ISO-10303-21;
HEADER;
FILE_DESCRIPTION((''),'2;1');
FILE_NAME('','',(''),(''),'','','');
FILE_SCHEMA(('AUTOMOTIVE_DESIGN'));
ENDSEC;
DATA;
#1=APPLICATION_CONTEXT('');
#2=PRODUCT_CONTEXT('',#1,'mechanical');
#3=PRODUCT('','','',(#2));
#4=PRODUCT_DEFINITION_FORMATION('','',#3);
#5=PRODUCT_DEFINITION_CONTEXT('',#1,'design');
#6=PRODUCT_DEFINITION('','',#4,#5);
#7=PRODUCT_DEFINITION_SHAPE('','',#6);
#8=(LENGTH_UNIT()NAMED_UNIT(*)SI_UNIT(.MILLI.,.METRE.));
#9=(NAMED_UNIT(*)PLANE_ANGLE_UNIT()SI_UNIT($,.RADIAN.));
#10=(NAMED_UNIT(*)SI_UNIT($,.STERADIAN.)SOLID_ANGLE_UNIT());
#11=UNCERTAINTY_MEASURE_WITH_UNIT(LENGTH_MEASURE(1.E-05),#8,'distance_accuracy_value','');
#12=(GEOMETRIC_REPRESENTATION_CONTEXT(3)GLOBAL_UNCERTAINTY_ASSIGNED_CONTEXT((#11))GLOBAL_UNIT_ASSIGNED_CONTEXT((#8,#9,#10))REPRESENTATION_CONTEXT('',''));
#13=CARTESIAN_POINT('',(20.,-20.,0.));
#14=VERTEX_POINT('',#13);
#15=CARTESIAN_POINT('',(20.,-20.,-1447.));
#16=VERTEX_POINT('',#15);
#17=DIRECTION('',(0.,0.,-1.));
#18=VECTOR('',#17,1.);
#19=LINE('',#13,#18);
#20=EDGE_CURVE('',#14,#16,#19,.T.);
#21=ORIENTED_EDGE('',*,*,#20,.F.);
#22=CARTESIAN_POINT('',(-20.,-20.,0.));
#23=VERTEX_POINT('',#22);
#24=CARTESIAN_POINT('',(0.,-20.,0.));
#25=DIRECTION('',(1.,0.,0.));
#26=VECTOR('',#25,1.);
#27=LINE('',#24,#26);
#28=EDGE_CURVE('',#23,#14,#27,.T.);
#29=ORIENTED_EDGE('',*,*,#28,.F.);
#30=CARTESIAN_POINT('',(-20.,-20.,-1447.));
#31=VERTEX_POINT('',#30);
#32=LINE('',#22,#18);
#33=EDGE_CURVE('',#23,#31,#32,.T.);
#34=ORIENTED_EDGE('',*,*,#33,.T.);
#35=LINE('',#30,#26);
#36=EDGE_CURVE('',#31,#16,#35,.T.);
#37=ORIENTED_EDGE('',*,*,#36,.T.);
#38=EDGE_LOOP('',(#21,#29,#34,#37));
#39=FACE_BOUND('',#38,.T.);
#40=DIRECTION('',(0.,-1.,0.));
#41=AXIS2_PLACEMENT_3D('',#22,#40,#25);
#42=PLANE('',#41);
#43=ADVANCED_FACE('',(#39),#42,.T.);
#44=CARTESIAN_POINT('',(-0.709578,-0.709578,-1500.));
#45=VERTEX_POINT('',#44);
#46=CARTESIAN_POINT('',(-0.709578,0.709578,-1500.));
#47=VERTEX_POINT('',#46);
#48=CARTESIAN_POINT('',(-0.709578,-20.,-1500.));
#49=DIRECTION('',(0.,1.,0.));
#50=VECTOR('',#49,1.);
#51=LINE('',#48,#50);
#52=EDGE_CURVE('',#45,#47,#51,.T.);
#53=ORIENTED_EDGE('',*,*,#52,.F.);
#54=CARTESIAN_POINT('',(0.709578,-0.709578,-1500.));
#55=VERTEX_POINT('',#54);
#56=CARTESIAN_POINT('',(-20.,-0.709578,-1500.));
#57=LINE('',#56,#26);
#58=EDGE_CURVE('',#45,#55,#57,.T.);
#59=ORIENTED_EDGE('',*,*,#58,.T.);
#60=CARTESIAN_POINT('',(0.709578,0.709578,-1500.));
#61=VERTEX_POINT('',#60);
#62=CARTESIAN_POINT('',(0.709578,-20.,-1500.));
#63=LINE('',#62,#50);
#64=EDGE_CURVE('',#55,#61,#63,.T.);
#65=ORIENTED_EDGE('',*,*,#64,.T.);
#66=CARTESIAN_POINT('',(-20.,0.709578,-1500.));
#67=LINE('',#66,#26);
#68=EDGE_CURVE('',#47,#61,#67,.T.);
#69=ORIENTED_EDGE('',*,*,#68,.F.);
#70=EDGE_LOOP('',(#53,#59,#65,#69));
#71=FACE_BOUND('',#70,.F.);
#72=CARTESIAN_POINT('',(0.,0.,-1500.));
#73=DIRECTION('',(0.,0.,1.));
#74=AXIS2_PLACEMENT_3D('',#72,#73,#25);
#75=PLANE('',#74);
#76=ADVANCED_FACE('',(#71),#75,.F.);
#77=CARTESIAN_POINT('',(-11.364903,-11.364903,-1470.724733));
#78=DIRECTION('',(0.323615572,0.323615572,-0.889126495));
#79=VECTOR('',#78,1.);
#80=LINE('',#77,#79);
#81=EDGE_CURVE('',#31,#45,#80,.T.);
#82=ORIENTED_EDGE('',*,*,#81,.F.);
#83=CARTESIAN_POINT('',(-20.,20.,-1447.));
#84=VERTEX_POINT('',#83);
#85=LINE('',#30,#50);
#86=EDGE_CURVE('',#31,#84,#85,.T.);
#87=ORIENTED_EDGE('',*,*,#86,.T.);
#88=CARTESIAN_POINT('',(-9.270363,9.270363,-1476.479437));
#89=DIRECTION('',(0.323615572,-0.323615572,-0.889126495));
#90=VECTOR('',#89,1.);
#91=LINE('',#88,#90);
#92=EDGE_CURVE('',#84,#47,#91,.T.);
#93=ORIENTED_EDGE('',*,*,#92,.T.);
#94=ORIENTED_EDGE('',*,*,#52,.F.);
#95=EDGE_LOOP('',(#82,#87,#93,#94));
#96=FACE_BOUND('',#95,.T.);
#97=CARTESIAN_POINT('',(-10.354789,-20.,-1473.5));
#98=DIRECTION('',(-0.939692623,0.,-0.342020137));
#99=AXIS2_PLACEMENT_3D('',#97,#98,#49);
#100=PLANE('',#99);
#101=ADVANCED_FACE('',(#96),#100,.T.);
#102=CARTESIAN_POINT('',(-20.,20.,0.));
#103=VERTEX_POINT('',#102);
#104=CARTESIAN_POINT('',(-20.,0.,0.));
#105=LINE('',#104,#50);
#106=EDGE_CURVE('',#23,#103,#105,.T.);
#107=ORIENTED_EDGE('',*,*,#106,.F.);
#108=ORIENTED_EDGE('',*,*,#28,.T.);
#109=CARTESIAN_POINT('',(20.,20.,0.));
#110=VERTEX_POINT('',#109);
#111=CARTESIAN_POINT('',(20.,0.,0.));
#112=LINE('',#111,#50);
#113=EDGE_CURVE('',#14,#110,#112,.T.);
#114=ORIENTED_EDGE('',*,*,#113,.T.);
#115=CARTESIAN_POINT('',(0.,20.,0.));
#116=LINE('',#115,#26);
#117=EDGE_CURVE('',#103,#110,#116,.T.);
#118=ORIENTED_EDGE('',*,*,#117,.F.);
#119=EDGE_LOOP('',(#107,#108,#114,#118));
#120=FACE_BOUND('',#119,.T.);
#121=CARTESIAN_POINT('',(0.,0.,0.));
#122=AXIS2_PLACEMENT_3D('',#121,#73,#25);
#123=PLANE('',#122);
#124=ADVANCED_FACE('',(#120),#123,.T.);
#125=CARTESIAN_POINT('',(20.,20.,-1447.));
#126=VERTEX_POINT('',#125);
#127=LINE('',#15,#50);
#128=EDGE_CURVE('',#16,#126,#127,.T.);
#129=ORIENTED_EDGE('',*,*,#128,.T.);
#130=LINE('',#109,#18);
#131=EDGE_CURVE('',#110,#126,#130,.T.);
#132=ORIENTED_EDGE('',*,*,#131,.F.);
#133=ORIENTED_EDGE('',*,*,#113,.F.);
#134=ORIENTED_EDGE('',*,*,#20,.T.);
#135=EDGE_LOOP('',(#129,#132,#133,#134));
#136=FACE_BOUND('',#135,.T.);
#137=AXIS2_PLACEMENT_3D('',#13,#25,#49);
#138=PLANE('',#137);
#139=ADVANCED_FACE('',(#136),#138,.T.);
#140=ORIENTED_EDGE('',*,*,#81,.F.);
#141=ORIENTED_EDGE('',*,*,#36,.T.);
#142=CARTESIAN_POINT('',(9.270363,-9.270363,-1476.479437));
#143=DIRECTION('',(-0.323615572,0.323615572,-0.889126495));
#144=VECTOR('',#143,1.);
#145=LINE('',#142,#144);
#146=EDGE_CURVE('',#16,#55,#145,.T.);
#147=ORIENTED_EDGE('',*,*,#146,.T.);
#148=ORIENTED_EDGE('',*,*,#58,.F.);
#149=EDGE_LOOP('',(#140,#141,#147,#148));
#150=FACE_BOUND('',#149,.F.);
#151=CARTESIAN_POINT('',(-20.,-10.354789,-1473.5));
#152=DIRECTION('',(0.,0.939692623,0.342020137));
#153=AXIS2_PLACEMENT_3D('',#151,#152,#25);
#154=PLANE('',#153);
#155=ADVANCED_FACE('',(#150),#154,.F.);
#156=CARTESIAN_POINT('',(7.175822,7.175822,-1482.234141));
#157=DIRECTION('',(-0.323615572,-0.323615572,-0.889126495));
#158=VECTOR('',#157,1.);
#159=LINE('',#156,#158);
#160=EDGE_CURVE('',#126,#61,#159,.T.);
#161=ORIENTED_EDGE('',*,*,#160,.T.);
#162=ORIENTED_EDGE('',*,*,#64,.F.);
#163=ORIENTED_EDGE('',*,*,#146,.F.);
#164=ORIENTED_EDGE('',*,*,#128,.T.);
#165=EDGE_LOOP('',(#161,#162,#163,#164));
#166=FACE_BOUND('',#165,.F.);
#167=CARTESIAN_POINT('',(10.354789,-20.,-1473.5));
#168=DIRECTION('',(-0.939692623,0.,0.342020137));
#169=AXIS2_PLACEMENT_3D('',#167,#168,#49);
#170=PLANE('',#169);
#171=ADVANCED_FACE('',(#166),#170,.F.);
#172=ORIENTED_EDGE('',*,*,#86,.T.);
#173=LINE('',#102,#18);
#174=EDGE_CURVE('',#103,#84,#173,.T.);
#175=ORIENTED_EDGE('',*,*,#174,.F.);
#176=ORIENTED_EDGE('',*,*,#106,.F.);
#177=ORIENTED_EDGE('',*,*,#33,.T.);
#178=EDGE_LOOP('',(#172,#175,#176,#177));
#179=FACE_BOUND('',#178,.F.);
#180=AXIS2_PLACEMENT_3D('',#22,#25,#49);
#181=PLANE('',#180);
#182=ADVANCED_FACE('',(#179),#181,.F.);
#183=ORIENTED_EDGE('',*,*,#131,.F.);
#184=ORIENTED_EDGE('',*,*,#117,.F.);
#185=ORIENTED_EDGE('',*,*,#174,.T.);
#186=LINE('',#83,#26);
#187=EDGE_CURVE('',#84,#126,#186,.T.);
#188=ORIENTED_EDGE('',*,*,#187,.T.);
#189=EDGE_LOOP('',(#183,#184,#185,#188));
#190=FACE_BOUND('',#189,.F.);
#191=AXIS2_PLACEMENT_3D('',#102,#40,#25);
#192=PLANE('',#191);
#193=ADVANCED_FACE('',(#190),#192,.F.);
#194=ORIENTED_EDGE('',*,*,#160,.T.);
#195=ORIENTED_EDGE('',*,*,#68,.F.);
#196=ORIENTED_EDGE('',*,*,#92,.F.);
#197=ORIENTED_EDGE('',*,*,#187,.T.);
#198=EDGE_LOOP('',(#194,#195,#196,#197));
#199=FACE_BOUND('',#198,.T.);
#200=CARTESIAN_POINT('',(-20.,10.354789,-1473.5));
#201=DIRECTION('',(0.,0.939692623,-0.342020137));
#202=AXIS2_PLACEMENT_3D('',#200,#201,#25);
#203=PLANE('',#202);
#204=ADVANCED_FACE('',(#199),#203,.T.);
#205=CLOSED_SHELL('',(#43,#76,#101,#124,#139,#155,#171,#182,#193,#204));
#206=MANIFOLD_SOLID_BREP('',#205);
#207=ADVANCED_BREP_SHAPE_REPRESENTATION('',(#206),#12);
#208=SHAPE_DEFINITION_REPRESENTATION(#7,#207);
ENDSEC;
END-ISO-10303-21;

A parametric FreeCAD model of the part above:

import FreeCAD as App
import Part
import Sketcher
Q = App.Units.Quantity


def edges_at(feature, points):
    """Names of the edges that pass closest to the given points."""
    edges = feature.Shape.Edges
    near = lambda p: min(range(len(edges)), key=lambda i: edges[i].distToShape(Part.Vertex(*p))[0])
    return sorted({f"Edge{near(p) + 1}" for p in points})


def add_polygon(sketch, points):
    """Adds a closed chain of lines whose ends are joined by coincident constraints."""
    first, n = sketch.GeometryCount, len(points)
    for a, b in zip(points, points[1:] + points[:1]):
        sketch.addGeometry(Part.LineSegment(App.Vector(*a, 0), App.Vector(*b, 0)), False)
    for i in range(n):
        sketch.addConstraint(Sketcher.Constraint("Coincident", first + i, 2, first + (i + 1) % n, 1))

doc = App.newDocument("Part")
body = doc.addObject("PartDesign::Body", "Body")

# Sketch on XY plane
sketch1 = doc.addObject("Sketcher::SketchObject", "Sketch")
body.addObject(sketch1)
sketch1.AttachmentSupport = (doc.XY_Plane, [""])
sketch1.MapMode = "FlatFace"
add_polygon(sketch1, [(-20, 20), (-20, -20), (20, -20), (20, 20)])  # lines 0-3
sketch1.addConstraint([
    Sketcher.Constraint("Vertical", 0),
    Sketcher.Constraint("Horizontal", 1),
    Sketcher.Constraint("Vertical", 2),
    Sketcher.Constraint("Horizontal", 3),
    Sketcher.Constraint("Symmetric", 0, 2, 2, 2, -1, 1),
    Sketcher.Constraint("Equal", 3, 0),
    Sketcher.Constraint("DistanceX", 1, 1, 1, 2, Q("40 mm")),
])
pad1 = doc.addObject("PartDesign::Pad", "Pad")
body.addObject(pad1)
pad1.Profile = sketch1
pad1.Length = 1500
pad1.Reversed = True
doc.recompute()

chamfer = doc.addObject("PartDesign::Chamfer", "Chamfer")
body.addObject(chamfer)
chamfer.Base = (pad1, edges_at(pad1, [
    (0, -20, -1500),
    (20, 0, -1500),
    (0, 20, -1500),
    (-20, 0, -1500),
]))
chamfer.ChamferType = "Two distances"
chamfer.Size = 53
chamfer.Size2 = 19.290422

doc.recompute()
